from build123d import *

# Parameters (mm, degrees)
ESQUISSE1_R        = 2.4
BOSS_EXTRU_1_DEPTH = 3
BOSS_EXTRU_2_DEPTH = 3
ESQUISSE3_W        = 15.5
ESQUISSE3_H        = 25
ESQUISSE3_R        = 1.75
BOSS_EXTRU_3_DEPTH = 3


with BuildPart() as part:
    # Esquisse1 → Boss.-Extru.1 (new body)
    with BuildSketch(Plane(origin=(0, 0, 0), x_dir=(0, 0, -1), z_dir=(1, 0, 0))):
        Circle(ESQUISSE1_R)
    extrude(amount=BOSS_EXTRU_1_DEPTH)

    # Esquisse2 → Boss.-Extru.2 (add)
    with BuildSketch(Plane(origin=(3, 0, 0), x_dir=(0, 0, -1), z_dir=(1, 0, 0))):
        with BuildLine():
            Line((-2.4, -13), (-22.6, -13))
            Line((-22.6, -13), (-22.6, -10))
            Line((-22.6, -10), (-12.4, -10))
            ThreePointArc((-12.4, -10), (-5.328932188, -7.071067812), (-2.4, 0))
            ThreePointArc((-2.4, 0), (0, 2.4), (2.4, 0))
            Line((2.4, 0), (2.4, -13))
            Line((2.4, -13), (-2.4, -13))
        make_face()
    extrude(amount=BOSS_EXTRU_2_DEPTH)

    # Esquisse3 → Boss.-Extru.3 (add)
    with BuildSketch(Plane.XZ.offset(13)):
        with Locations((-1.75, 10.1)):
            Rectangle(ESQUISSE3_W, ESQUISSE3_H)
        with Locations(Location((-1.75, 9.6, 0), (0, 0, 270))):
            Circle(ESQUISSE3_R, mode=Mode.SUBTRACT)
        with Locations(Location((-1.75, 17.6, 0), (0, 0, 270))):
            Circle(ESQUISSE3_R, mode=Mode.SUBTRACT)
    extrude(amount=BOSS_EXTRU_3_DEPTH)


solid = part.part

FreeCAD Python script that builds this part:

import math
import FreeCAD as App
import Part
import Sketcher
from FreeCAD import Vector
Q = App.Units.Quantity

doc = App.newDocument("Part")
params = doc.addObject("Spreadsheet::Sheet", "Params")
for row, (alias, value) in enumerate([
    ("sketch1_diameter", "4.8 mm"),
    ("pad1_length", "3 mm"),
    ("sketch2_radius", "10 mm"),
    ("sketch2_radius2", "2.4 mm"),
    ("sketch2_width", "3 mm"),
    ("sketch2_height", "25 mm"),
    ("pad2_length", "3 mm"),
    ("sketch3_diameter", "3.5 mm"),
    ("sketch3_height", "25 mm"),
    ("sketch3_width", "15.5 mm"),
    ("pad3_length", "3 mm"),
], start=1):
    params.set(f"A{row}", alias)
    params.set(f"B{row}", "=" + value)
    params.setAlias(f"B{row}", alias)

body = doc.addObject("PartDesign::Body", "Body")

# Sketch on YZ plane
sketch1 = body.newObject("Sketcher::SketchObject", "Sketch")
sketch1.AttachmentSupport = (doc.getObject("YZ_Plane"), [""])
sketch1.MapMode = "FlatFace"
sketch1.addGeometry(Part.Circle(Vector(0, 0, 0), Vector(0, 0, 1), 2.4), False)
sketch1.addConstraint([
    Sketcher.Constraint("Coincident", 0, 3, -1, 1),
    Sketcher.Constraint("Diameter", 0, Q("4.8 mm")),
])
sketch1.setExpression("Constraints[1]", "Params.sketch1_diameter")
pad1 = body.newObject("PartDesign::Pad", "Pad")
pad1.Profile = sketch1
pad1.setExpression("Length", "Params.pad1_length")

# Sketch on YZ plane
sketch2 = body.newObject("Sketcher::SketchObject", "Sketch001")
sketch2.AttachmentSupport = (doc.getObject("YZ_Plane"), [""])
sketch2.MapMode = "FlatFace"
sketch2.AttachmentOffset = App.Placement(Vector(0, 0, 3), App.Rotation())
sketch2.addGeometry([
    Part.LineSegment(Vector(-10, 22.6, 0), Vector(-13, 22.6, 0)),  # 0
    Part.LineSegment(Vector(-13, 22.6, 0), Vector(-13, -2.4, 0)),  # 1
    Part.LineSegment(Vector(-13, -2.4, 0), Vector(0, -2.4, 0)),  # 2
    Part.ArcOfCircle(Part.Circle(Vector(0, 0, 0), Vector(0, 0, 1), 2.4), math.radians(-90), math.radians(90)),  # 3
    Part.ArcOfCircle(Part.Circle(Vector(0, 12.4, 0), Vector(0, 0, 1), 10), math.radians(180), math.radians(270)),  # 4
    Part.LineSegment(Vector(-10, 12.4, 0), Vector(-10, 22.6, 0)),  # 5
], False)
sketch2.addConstraint([
    Sketcher.Constraint("Coincident", 0, 2, 1, 1),
    Sketcher.Constraint("Coincident", 1, 2, 2, 1),
    Sketcher.Constraint("Tangent", 2, 2, 3, 1),
    Sketcher.Constraint("Tangent", 3, 2, 4, 2),
    Sketcher.Constraint("Tangent", 4, 1, 5, 1),
    Sketcher.Constraint("Coincident", 5, 2, 0, 1),
    Sketcher.Constraint("Horizontal", 0),
    Sketcher.Constraint("Vertical", 1),
    Sketcher.Constraint("Horizontal", 2),
    Sketcher.Constraint("Vertical", 5),
    Sketcher.Constraint("Coincident", 3, 3, -1, 1),
    Sketcher.Constraint("PointOnObject", 4, 3, -2),
    Sketcher.Constraint("Radius", 4, Q("10 mm")),
    Sketcher.Constraint("Radius", 3, Q("2.4 mm")),
    Sketcher.Constraint("DistanceX", 0, 2, 0, 1, Q("3 mm")),
    Sketcher.Constraint("DistanceY", 1, 2, 1, 1, Q("25 mm")),
])
sketch2.setExpression("Constraints[12]", "Params.sketch2_radius")
sketch2.setExpression("Constraints[13]", "Params.sketch2_radius2")
sketch2.setExpression("Constraints[14]", "Params.sketch2_width")
sketch2.setExpression("Constraints[15]", "Params.sketch2_height")
pad2 = body.newObject("PartDesign::Pad", "Pad001")
pad2.Profile = sketch2
pad2.setExpression("Length", "Params.pad2_length")

# Sketch on XZ plane
sketch3 = body.newObject("Sketcher::SketchObject", "Sketch002")
sketch3.AttachmentSupport = (doc.getObject("XZ_Plane"), [""])
sketch3.MapMode = "FlatFace"
sketch3.AttachmentOffset = App.Placement(Vector(0, 0, 13), App.Rotation())
sketch3.addGeometry([
    Part.LineSegment(Vector(-9.5, 22.6, 0), Vector(-9.5, -2.4, 0)),  # 0
    Part.LineSegment(Vector(-9.5, -2.4, 0), Vector(6, -2.4, 0)),  # 1
    Part.LineSegment(Vector(6, -2.4, 0), Vector(6, 22.6, 0)),  # 2
    Part.LineSegment(Vector(6, 22.6, 0), Vector(-9.5, 22.6, 0)),  # 3
    Part.Circle(Vector(-1.8, 9.6, 0), Vector(0, 0, 1), 1.8),  # 4
    Part.Circle(Vector(-1.8, 17.6, 0), Vector(0, 0, 1), 1.8),  # 5
], False)
sketch3.addConstraint([
    Sketcher.Constraint("Coincident", 0, 2, 1, 1),
    Sketcher.Constraint("Coincident", 1, 2, 2, 1),
    Sketcher.Constraint("Coincident", 2, 2, 3, 1),
    Sketcher.Constraint("Coincident", 3, 2, 0, 1),
    Sketcher.Constraint("Vertical", 0),
    Sketcher.Constraint("Horizontal", 1),
    Sketcher.Constraint("Vertical", 2),
    Sketcher.Constraint("Horizontal", 3),
    Sketcher.Constraint("Equal", 4, 5),
    Sketcher.Constraint("Vertical", 4, 3, 5, 3),
    Sketcher.Constraint("Diameter", 4, Q("3.5 mm")),
    Sketcher.Constraint("DistanceY", 0, 2, 0, 1, Q("25 mm")),
    Sketcher.Constraint("DistanceX", 1, 1, 1, 2, Q("15.5 mm")),
    Sketcher.Constraint("DistanceX", -1, 1, 1, 2, Q("6 mm")),
    Sketcher.Constraint("DistanceY", 4, 3, 5, 3, Q("8 mm")),
    Sketcher.Constraint("DistanceY", 0, 2, 4, 3, Q("12 mm")),
    Sketcher.Constraint("DistanceY", -1, 1, 4, 3, Q("9.6 mm")),
    Sketcher.Constraint("DistanceX", 4, 3, -1, 1, Q("1.75 mm")),
])
sketch3.setExpression("Constraints[10]", "Params.sketch3_diameter")
sketch3.setExpression("Constraints[11]", "Params.sketch3_height")
sketch3.setExpression("Constraints[12]", "Params.sketch3_width")
pad3 = body.newObject("PartDesign::Pad", "Pad002")
pad3.Profile = sketch3
pad3.setExpression("Length", "Params.pad3_length")

doc.recompute()
